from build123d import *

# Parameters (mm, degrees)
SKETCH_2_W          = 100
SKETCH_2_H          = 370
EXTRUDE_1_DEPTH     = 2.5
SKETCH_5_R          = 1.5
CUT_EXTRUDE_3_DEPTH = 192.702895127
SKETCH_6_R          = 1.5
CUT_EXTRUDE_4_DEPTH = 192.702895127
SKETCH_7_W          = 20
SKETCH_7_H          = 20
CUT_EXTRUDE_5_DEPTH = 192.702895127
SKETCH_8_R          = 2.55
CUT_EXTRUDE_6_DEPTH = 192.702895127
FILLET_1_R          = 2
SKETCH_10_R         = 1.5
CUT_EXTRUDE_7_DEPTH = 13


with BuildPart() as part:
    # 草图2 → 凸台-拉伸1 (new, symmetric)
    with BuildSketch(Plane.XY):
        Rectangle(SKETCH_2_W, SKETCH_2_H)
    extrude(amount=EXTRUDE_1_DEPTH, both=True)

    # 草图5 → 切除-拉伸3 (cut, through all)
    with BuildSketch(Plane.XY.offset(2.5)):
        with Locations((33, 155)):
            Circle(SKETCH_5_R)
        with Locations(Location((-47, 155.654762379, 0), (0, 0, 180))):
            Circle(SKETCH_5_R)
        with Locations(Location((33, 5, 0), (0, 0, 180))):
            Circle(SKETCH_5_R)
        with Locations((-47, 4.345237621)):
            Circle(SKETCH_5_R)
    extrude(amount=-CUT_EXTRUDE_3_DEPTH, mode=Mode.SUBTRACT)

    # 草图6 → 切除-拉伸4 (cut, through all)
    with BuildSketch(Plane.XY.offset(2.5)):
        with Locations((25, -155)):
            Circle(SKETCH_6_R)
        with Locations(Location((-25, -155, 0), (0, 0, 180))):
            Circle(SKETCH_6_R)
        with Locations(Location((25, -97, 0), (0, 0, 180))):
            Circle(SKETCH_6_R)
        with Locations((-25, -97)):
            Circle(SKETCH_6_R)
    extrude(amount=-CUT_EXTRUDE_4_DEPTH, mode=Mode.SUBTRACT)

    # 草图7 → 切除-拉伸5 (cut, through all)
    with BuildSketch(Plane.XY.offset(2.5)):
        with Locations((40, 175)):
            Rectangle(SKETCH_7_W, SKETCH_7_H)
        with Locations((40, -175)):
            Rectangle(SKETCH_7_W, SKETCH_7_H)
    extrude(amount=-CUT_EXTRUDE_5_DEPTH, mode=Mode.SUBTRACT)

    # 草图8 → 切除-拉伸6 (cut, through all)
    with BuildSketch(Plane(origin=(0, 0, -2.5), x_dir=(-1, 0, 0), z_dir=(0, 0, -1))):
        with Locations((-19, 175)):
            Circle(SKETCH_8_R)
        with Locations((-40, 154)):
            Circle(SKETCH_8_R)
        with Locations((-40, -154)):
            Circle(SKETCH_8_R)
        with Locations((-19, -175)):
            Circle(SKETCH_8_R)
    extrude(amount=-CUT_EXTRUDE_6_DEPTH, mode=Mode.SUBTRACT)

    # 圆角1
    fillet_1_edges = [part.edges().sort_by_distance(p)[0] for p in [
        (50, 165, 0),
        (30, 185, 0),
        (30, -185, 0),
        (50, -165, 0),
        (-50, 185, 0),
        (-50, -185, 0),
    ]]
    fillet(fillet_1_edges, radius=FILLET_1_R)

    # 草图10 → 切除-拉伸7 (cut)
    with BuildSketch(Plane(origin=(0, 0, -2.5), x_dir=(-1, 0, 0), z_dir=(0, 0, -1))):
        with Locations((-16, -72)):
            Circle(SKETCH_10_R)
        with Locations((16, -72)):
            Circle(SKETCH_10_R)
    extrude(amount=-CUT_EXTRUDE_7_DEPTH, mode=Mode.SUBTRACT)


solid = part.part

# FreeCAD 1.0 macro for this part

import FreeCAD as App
import Part
import Sketcher

V = App.Vector
Q = App.Units.Quantity


def edges_at(feature, points):
    """Names of the edges that pass closest to the given points."""
    edges = feature.Shape.Edges
    near = lambda p: min(range(len(edges)), key=lambda i: edges[i].distToShape(Part.Vertex(*p))[0])
    return sorted({f"Edge{near(p) + 1}" for p in points})


def add_polygon(sketch, points):
    """Adds a closed chain of lines whose ends are joined by coincident constraints."""
    first, n = sketch.GeometryCount, len(points)
    for a, b in zip(points, points[1:] + points[:1]):
        sketch.addGeometry(Part.LineSegment(App.Vector(*a, 0), App.Vector(*b, 0)), False)
    for i in range(n):
        sketch.addConstraint(Sketcher.Constraint("Coincident", first + i, 2, first + (i + 1) % n, 1))

doc = App.newDocument("Part")
body = doc.addObject("PartDesign::Body", "Body")

# Sketch on XY plane
sketch1 = doc.addObject("Sketcher::SketchObject", "Sketch")
body.addObject(sketch1)
sketch1.AttachmentSupport = (doc.XY_Plane, [""])
sketch1.MapMode = "FlatFace"
add_polygon(sketch1, [(-50, 185), (-50, -185), (50, -185), (50, 185)])  # lines 0-3
sketch1.addConstraint([
    Sketcher.Constraint("Vertical", 0),
    Sketcher.Constraint("Horizontal", 1),
    Sketcher.Constraint("Vertical", 2),
    Sketcher.Constraint("Horizontal", 3),
    Sketcher.Constraint("Symmetric", 0, 2, 2, 2, -1, 1),
    Sketcher.Constraint("DistanceX", 1, 1, 1, 2, Q("100 mm")),
    Sketcher.Constraint("DistanceY", 0, 2, 0, 1, Q("370 mm")),
])
pad1 = doc.addObject("PartDesign::Pad", "Pad")
body.addObject(pad1)
pad1.Profile = sketch1
pad1.Length = 5
pad1.Midplane = True

# Sketch on XY plane
sketch2 = doc.addObject("Sketcher::SketchObject", "Sketch001")
body.addObject(sketch2)
sketch2.AttachmentSupport = (doc.XY_Plane, [""])
sketch2.MapMode = "FlatFace"
sketch2.AttachmentOffset = App.Placement(V(0, 0, 2.5), App.Rotation())
sketch2.addGeometry([
    Part.Circle(V(33, 155, 0), V(0, 0, 1), 1.5),
    Part.Circle(V(-47, 155.7, 0), V(0, 0, 1), 1.5),
    Part.Circle(V(33, 5, 0), V(0, 0, 1), 1.5),
    Part.Circle(V(-47, 4.3, 0), V(0, 0, 1), 1.5),
], False)
sketch2.addConstraint([
    Sketcher.Constraint("Equal", 0, 1),
    Sketcher.Constraint("Equal", 1, 2),
    Sketcher.Constraint("Equal", 2, 3),
    Sketcher.Constraint("Vertical", 0, 3, 2, 3),
    Sketcher.Constraint("Vertical", 1, 3, 3, 3),
    Sketcher.Constraint("Diameter", 0, Q("3 mm")),
    Sketcher.Constraint("DistanceX", -1, 1, 0, 3, Q("33 mm")),
    Sketcher.Constraint("DistanceY", -1, 1, 0, 3, Q("155 mm")),
    Sketcher.Constraint("DistanceX", 1, 3, -1, 1, Q("47 mm")),
    Sketcher.Constraint("DistanceY", -1, 1, 2, 3, Q("5 mm")),
    Sketcher.Constraint("DistanceY", -1, 1, 1, 3, Q("155.654762 mm")),
    Sketcher.Constraint("DistanceY", -1, 1, 3, 3, Q("4.345238 mm")),
])
pocket1 = doc.addObject("PartDesign::Pocket", "Pocket")
body.addObject(pocket1)
pocket1.Profile = sketch2
pocket1.Type = "ThroughAll"

# Sketch on XY plane
sketch3 = doc.addObject("Sketcher::SketchObject", "Sketch002")
body.addObject(sketch3)
sketch3.AttachmentSupport = (doc.XY_Plane, [""])
sketch3.MapMode = "FlatFace"
sketch3.AttachmentOffset = App.Placement(V(0, 0, 2.5), App.Rotation())
sketch3.addGeometry([
    Part.Circle(V(25, -155, 0), V(0, 0, 1), 1.5),
    Part.Circle(V(-25, -155, 0), V(0, 0, 1), 1.5),
    Part.Circle(V(25, -97, 0), V(0, 0, 1), 1.5),
    Part.Circle(V(-25, -97, 0), V(0, 0, 1), 1.5),
], False)
sketch3.addConstraint([
    Sketcher.Constraint("Equal", 0, 1),
    Sketcher.Constraint("Equal", 1, 2),
    Sketcher.Constraint("Equal", 2, 3),
    Sketcher.Constraint("Symmetric", 0, 3, 1, 3, -2),
    Sketcher.Constraint("Symmetric", 2, 3, 3, 3, -2),
    Sketcher.Constraint("Vertical", 0, 3, 2, 3),
    Sketcher.Constraint("Diameter", 0, Q("3 mm")),
    Sketcher.Constraint("DistanceX", -1, 1, 0, 3, Q("25 mm")),
    Sketcher.Constraint("DistanceY", 0, 3, -1, 1, Q("155 mm")),
    Sketcher.Constraint("DistanceY", 2, 3, -1, 1, Q("97 mm")),
])
pocket2 = doc.addObject("PartDesign::Pocket", "Pocket001")
body.addObject(pocket2)
pocket2.Profile = sketch3
pocket2.Type = "ThroughAll"

# Sketch on XY plane
sketch4 = doc.addObject("Sketcher::SketchObject", "Sketch003")
body.addObject(sketch4)
sketch4.AttachmentSupport = (doc.XY_Plane, [""])
sketch4.MapMode = "FlatFace"
sketch4.AttachmentOffset = App.Placement(V(0, 0, 2.5), App.Rotation())
add_polygon(sketch4, [(30, 185), (30, 165), (50, 165), (50, 185)])  # lines 0-3
add_polygon(sketch4, [(30, -165), (30, -185), (50, -185), (50, -165)])  # lines 4-7
sketch4.addConstraint([
    Sketcher.Constraint("Vertical", 0),
    Sketcher.Constraint("Horizontal", 1),
    Sketcher.Constraint("Vertical", 2),
    Sketcher.Constraint("Horizontal", 3),
    Sketcher.Constraint("Vertical", 4),
    Sketcher.Constraint("Horizontal", 5),
    Sketcher.Constraint("Vertical", 6),
    Sketcher.Constraint("Horizontal", 7),
    Sketcher.Constraint("Symmetric", 3, 2, 4, 2, -1),
    Sketcher.Constraint("Symmetric", 1, 2, 6, 2, -1),
    Sketcher.Constraint("Equal", 7, 0),
    Sketcher.Constraint("DistanceX", 1, 1, 1, 2, Q("20 mm")),
    Sketcher.Constraint("DistanceX", -1, 1, 0, 2, Q("30 mm")),
    Sketcher.Constraint("DistanceY", -1, 1, 0, 2, Q("165 mm")),
])
pocket3 = doc.addObject("PartDesign::Pocket", "Pocket002")
body.addObject(pocket3)
pocket3.Profile = sketch4
pocket3.Type = "ThroughAll"

# Sketch on XY plane
sketch5 = doc.addObject("Sketcher::SketchObject", "Sketch004")
body.addObject(sketch5)
sketch5.AttachmentSupport = (doc.XY_Plane, [""])
sketch5.MapMode = "FlatFace"
sketch5.AttachmentOffset = App.Placement(V(0, 0, -2.5), App.Rotation())
sketch5.addGeometry([
    Part.Circle(V(19, 175, 0), V(0, 0, 1), 2.5),
    Part.Circle(V(40, 154, 0), V(0, 0, 1), 2.5),
    Part.Circle(V(40, -154, 0), V(0, 0, 1), 2.5),
    Part.Circle(V(19, -175, 0), V(0, 0, 1), 2.5),
], False)
sketch5.addConstraint([
    Sketcher.Constraint("Equal", 0, 1),
    Sketcher.Constraint("Equal", 1, 2),
    Sketcher.Constraint("Equal", 2, 3),
    Sketcher.Constraint("Symmetric", 1, 3, 2, 3, -1),
    Sketcher.Constraint("Symmetric", 0, 3, 3, 3, -1),
    Sketcher.Constraint("Diameter", 0, Q("5.1 mm")),
    Sketcher.Constraint("DistanceX", -1, 1, 0, 3, Q("19 mm")),
    Sketcher.Constraint("DistanceY", -1, 1, 0, 3, Q("175 mm")),
    Sketcher.Constraint("DistanceX", -1, 1, 1, 3, Q("40 mm")),
    Sketcher.Constraint("DistanceY", -1, 1, 1, 3, Q("154 mm")),
])
pocket4 = doc.addObject("PartDesign::Pocket", "Pocket003")
body.addObject(pocket4)
pocket4.Profile = sketch5
pocket4.Type = "ThroughAll"
pocket4.Reversed = True
doc.recompute()

fillet = doc.addObject("PartDesign::Fillet", "Fillet")
body.addObject(fillet)
fillet.Base = (pocket4, edges_at(pocket4, [
    (50, 165, 0),
    (30, 185, 0),
    (30, -185, 0),
    (50, -165, 0),
    (-50, 185, 0),
    (-50, -185, 0),
]))
fillet.Radius = 2

# Sketch on XY plane
sketch6 = doc.addObject("Sketcher::SketchObject", "Sketch005")
body.addObject(sketch6)
sketch6.AttachmentSupport = (doc.XY_Plane, [""])
sketch6.MapMode = "FlatFace"
sketch6.AttachmentOffset = App.Placement(V(0, 0, -2.5), App.Rotation())
sketch6.addGeometry([
    Part.Circle(V(16, -72, 0), V(0, 0, 1), 1.5),
    Part.Circle(V(-16, -72, 0), V(0, 0, 1), 1.5),
], False)
sketch6.addConstraint([
    Sketcher.Constraint("Equal", 0, 1),
    Sketcher.Constraint("Symmetric", 0, 3, 1, 3, -2),
    Sketcher.Constraint("Diameter", 0, Q("3 mm")),
    Sketcher.Constraint("DistanceX", -1, 1, 0, 3, Q("16 mm")),
    Sketcher.Constraint("DistanceY", 0, 3, -1, 1, Q("72 mm")),
])
pocket5 = doc.addObject("PartDesign::Pocket", "Pocket004")
body.addObject(pocket5)
pocket5.Profile = sketch6
pocket5.Length = 13
pocket5.Reversed = True

doc.recompute()
